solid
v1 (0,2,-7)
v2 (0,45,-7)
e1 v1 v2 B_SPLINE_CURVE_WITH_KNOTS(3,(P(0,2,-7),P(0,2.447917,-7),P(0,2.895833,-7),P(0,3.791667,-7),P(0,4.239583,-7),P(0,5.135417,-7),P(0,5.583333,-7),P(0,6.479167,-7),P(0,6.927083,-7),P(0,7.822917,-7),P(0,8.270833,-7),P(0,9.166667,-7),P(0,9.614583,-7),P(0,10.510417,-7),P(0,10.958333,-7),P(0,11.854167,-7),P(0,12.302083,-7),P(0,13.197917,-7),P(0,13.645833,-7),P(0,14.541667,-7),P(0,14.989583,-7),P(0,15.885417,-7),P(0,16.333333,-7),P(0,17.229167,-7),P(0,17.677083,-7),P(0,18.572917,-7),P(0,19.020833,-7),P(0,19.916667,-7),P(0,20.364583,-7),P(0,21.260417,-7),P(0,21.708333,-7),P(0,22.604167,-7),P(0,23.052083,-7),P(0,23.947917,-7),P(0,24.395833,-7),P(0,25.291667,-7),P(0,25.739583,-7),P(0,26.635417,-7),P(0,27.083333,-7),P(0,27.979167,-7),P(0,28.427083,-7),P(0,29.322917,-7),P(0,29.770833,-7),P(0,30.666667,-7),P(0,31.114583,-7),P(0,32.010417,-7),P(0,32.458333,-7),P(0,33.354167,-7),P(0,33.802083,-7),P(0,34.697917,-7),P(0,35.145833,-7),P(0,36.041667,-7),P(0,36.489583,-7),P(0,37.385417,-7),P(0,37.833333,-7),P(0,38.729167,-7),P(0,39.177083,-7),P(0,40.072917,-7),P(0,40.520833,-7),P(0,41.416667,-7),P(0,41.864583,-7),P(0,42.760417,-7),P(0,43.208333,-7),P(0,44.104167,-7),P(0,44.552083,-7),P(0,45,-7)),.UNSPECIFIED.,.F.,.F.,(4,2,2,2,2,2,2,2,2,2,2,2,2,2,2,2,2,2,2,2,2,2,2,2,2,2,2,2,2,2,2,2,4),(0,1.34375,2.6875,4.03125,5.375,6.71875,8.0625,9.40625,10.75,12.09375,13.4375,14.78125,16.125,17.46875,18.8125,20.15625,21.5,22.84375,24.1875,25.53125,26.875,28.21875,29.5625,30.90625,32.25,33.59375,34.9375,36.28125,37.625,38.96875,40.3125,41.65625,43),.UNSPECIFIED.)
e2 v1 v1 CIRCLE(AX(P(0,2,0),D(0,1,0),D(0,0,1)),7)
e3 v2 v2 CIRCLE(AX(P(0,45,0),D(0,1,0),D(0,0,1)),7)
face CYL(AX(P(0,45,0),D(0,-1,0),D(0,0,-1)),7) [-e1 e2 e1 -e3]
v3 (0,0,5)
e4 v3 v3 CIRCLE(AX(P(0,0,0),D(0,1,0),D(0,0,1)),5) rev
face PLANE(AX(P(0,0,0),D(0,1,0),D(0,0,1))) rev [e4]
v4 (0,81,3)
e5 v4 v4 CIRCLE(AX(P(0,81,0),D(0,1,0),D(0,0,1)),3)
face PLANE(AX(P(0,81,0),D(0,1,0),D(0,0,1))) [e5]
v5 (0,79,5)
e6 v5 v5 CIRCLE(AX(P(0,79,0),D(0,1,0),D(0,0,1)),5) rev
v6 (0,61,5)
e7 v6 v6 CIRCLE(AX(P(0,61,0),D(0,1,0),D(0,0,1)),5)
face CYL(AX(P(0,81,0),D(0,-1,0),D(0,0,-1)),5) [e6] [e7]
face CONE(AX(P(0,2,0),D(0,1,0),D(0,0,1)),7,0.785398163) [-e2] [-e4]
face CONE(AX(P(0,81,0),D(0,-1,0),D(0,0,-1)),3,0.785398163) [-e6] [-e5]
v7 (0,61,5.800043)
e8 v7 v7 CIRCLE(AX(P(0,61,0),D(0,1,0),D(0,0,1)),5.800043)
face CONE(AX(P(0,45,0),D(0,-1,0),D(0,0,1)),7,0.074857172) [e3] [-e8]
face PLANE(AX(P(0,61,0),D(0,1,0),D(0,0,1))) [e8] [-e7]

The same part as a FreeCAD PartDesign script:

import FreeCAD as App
import Part
import Sketcher
from FreeCAD import Vector
Q = App.Units.Quantity


def edges_at(feature, points):
    """Names of the edges that pass closest to the given points."""
    edges = feature.Shape.Edges
    near = lambda p: min(range(len(edges)), key=lambda i: edges[i].distToShape(Part.Vertex(*p))[0])
    return sorted({f"Edge{near(p) + 1}" for p in points})

doc = App.newDocument("Part")
body = doc.addObject("PartDesign::Body", "Body")

# Sketch on XZ plane
sketch1 = doc.addObject("Sketcher::SketchObject", "Sketch")
body.addObject(sketch1)
sketch1.AttachmentSupport = (doc.XZ_Plane, [""])
sketch1.MapMode = "FlatFace"
sketch1.addGeometry(Part.Circle(Vector(0, 0, 0), Vector(0, 0, 1), 7), False)
sketch1.addConstraint([
    Sketcher.Constraint("Coincident", 0, 3, -1, 1),
    Sketcher.Constraint("Diameter", 0, Q("14 mm")),
])
pad1 = doc.addObject("PartDesign::Pad", "Pad")
body.addObject(pad1)
pad1.Profile = sketch1
pad1.Length = 45
pad1.Reversed = True

# Sketch on XZ plane
sketch2 = doc.addObject("Sketcher::SketchObject", "Sketch001")
body.addObject(sketch2)
sketch2.AttachmentSupport = (doc.XZ_Plane, [""])
sketch2.MapMode = "FlatFace"
sketch2.AttachmentOffset = App.Placement(Vector(0, 0, -45), App.Rotation())
sketch2.addGeometry(Part.Circle(Vector(0, 0, 0), Vector(0, 0, 1), 7), False)
sketch2.addConstraint([
    Sketcher.Constraint("Coincident", 0, 3, -1, 1),
    Sketcher.Constraint("Diameter", 0, Q("14 mm")),
])
pad2 = doc.addObject("PartDesign::Pad", "Pad001")
body.addObject(pad2)
pad2.Profile = sketch2
pad2.Length = 16
pad2.Reversed = True
pad2.TaperAngle = -4.289

# Sketch on XZ plane
sketch3 = doc.addObject("Sketcher::SketchObject", "Sketch002")
body.addObject(sketch3)
sketch3.AttachmentSupport = (doc.XZ_Plane, [""])
sketch3.MapMode = "FlatFace"
sketch3.AttachmentOffset = App.Placement(Vector(0, 0, -61), App.Rotation())
sketch3.addGeometry(Part.Circle(Vector(0, 0, 0), Vector(0, 0, 1), 5), False)
sketch3.addConstraint([
    Sketcher.Constraint("Coincident", 0, 3, -1, 1),
    Sketcher.Constraint("Diameter", 0, Q("10 mm")),
])
pad3 = doc.addObject("PartDesign::Pad", "Pad002")
body.addObject(pad3)
pad3.Profile = sketch3
pad3.Length = 20
pad3.Reversed = True
doc.recompute()

chamfer = doc.addObject("PartDesign::Chamfer", "Chamfer")
body.addObject(chamfer)
chamfer.Base = (pad3, edges_at(pad3, [(0, 0, 7), (0, 81, -5)]))
chamfer.Size = 2

doc.recompute()
